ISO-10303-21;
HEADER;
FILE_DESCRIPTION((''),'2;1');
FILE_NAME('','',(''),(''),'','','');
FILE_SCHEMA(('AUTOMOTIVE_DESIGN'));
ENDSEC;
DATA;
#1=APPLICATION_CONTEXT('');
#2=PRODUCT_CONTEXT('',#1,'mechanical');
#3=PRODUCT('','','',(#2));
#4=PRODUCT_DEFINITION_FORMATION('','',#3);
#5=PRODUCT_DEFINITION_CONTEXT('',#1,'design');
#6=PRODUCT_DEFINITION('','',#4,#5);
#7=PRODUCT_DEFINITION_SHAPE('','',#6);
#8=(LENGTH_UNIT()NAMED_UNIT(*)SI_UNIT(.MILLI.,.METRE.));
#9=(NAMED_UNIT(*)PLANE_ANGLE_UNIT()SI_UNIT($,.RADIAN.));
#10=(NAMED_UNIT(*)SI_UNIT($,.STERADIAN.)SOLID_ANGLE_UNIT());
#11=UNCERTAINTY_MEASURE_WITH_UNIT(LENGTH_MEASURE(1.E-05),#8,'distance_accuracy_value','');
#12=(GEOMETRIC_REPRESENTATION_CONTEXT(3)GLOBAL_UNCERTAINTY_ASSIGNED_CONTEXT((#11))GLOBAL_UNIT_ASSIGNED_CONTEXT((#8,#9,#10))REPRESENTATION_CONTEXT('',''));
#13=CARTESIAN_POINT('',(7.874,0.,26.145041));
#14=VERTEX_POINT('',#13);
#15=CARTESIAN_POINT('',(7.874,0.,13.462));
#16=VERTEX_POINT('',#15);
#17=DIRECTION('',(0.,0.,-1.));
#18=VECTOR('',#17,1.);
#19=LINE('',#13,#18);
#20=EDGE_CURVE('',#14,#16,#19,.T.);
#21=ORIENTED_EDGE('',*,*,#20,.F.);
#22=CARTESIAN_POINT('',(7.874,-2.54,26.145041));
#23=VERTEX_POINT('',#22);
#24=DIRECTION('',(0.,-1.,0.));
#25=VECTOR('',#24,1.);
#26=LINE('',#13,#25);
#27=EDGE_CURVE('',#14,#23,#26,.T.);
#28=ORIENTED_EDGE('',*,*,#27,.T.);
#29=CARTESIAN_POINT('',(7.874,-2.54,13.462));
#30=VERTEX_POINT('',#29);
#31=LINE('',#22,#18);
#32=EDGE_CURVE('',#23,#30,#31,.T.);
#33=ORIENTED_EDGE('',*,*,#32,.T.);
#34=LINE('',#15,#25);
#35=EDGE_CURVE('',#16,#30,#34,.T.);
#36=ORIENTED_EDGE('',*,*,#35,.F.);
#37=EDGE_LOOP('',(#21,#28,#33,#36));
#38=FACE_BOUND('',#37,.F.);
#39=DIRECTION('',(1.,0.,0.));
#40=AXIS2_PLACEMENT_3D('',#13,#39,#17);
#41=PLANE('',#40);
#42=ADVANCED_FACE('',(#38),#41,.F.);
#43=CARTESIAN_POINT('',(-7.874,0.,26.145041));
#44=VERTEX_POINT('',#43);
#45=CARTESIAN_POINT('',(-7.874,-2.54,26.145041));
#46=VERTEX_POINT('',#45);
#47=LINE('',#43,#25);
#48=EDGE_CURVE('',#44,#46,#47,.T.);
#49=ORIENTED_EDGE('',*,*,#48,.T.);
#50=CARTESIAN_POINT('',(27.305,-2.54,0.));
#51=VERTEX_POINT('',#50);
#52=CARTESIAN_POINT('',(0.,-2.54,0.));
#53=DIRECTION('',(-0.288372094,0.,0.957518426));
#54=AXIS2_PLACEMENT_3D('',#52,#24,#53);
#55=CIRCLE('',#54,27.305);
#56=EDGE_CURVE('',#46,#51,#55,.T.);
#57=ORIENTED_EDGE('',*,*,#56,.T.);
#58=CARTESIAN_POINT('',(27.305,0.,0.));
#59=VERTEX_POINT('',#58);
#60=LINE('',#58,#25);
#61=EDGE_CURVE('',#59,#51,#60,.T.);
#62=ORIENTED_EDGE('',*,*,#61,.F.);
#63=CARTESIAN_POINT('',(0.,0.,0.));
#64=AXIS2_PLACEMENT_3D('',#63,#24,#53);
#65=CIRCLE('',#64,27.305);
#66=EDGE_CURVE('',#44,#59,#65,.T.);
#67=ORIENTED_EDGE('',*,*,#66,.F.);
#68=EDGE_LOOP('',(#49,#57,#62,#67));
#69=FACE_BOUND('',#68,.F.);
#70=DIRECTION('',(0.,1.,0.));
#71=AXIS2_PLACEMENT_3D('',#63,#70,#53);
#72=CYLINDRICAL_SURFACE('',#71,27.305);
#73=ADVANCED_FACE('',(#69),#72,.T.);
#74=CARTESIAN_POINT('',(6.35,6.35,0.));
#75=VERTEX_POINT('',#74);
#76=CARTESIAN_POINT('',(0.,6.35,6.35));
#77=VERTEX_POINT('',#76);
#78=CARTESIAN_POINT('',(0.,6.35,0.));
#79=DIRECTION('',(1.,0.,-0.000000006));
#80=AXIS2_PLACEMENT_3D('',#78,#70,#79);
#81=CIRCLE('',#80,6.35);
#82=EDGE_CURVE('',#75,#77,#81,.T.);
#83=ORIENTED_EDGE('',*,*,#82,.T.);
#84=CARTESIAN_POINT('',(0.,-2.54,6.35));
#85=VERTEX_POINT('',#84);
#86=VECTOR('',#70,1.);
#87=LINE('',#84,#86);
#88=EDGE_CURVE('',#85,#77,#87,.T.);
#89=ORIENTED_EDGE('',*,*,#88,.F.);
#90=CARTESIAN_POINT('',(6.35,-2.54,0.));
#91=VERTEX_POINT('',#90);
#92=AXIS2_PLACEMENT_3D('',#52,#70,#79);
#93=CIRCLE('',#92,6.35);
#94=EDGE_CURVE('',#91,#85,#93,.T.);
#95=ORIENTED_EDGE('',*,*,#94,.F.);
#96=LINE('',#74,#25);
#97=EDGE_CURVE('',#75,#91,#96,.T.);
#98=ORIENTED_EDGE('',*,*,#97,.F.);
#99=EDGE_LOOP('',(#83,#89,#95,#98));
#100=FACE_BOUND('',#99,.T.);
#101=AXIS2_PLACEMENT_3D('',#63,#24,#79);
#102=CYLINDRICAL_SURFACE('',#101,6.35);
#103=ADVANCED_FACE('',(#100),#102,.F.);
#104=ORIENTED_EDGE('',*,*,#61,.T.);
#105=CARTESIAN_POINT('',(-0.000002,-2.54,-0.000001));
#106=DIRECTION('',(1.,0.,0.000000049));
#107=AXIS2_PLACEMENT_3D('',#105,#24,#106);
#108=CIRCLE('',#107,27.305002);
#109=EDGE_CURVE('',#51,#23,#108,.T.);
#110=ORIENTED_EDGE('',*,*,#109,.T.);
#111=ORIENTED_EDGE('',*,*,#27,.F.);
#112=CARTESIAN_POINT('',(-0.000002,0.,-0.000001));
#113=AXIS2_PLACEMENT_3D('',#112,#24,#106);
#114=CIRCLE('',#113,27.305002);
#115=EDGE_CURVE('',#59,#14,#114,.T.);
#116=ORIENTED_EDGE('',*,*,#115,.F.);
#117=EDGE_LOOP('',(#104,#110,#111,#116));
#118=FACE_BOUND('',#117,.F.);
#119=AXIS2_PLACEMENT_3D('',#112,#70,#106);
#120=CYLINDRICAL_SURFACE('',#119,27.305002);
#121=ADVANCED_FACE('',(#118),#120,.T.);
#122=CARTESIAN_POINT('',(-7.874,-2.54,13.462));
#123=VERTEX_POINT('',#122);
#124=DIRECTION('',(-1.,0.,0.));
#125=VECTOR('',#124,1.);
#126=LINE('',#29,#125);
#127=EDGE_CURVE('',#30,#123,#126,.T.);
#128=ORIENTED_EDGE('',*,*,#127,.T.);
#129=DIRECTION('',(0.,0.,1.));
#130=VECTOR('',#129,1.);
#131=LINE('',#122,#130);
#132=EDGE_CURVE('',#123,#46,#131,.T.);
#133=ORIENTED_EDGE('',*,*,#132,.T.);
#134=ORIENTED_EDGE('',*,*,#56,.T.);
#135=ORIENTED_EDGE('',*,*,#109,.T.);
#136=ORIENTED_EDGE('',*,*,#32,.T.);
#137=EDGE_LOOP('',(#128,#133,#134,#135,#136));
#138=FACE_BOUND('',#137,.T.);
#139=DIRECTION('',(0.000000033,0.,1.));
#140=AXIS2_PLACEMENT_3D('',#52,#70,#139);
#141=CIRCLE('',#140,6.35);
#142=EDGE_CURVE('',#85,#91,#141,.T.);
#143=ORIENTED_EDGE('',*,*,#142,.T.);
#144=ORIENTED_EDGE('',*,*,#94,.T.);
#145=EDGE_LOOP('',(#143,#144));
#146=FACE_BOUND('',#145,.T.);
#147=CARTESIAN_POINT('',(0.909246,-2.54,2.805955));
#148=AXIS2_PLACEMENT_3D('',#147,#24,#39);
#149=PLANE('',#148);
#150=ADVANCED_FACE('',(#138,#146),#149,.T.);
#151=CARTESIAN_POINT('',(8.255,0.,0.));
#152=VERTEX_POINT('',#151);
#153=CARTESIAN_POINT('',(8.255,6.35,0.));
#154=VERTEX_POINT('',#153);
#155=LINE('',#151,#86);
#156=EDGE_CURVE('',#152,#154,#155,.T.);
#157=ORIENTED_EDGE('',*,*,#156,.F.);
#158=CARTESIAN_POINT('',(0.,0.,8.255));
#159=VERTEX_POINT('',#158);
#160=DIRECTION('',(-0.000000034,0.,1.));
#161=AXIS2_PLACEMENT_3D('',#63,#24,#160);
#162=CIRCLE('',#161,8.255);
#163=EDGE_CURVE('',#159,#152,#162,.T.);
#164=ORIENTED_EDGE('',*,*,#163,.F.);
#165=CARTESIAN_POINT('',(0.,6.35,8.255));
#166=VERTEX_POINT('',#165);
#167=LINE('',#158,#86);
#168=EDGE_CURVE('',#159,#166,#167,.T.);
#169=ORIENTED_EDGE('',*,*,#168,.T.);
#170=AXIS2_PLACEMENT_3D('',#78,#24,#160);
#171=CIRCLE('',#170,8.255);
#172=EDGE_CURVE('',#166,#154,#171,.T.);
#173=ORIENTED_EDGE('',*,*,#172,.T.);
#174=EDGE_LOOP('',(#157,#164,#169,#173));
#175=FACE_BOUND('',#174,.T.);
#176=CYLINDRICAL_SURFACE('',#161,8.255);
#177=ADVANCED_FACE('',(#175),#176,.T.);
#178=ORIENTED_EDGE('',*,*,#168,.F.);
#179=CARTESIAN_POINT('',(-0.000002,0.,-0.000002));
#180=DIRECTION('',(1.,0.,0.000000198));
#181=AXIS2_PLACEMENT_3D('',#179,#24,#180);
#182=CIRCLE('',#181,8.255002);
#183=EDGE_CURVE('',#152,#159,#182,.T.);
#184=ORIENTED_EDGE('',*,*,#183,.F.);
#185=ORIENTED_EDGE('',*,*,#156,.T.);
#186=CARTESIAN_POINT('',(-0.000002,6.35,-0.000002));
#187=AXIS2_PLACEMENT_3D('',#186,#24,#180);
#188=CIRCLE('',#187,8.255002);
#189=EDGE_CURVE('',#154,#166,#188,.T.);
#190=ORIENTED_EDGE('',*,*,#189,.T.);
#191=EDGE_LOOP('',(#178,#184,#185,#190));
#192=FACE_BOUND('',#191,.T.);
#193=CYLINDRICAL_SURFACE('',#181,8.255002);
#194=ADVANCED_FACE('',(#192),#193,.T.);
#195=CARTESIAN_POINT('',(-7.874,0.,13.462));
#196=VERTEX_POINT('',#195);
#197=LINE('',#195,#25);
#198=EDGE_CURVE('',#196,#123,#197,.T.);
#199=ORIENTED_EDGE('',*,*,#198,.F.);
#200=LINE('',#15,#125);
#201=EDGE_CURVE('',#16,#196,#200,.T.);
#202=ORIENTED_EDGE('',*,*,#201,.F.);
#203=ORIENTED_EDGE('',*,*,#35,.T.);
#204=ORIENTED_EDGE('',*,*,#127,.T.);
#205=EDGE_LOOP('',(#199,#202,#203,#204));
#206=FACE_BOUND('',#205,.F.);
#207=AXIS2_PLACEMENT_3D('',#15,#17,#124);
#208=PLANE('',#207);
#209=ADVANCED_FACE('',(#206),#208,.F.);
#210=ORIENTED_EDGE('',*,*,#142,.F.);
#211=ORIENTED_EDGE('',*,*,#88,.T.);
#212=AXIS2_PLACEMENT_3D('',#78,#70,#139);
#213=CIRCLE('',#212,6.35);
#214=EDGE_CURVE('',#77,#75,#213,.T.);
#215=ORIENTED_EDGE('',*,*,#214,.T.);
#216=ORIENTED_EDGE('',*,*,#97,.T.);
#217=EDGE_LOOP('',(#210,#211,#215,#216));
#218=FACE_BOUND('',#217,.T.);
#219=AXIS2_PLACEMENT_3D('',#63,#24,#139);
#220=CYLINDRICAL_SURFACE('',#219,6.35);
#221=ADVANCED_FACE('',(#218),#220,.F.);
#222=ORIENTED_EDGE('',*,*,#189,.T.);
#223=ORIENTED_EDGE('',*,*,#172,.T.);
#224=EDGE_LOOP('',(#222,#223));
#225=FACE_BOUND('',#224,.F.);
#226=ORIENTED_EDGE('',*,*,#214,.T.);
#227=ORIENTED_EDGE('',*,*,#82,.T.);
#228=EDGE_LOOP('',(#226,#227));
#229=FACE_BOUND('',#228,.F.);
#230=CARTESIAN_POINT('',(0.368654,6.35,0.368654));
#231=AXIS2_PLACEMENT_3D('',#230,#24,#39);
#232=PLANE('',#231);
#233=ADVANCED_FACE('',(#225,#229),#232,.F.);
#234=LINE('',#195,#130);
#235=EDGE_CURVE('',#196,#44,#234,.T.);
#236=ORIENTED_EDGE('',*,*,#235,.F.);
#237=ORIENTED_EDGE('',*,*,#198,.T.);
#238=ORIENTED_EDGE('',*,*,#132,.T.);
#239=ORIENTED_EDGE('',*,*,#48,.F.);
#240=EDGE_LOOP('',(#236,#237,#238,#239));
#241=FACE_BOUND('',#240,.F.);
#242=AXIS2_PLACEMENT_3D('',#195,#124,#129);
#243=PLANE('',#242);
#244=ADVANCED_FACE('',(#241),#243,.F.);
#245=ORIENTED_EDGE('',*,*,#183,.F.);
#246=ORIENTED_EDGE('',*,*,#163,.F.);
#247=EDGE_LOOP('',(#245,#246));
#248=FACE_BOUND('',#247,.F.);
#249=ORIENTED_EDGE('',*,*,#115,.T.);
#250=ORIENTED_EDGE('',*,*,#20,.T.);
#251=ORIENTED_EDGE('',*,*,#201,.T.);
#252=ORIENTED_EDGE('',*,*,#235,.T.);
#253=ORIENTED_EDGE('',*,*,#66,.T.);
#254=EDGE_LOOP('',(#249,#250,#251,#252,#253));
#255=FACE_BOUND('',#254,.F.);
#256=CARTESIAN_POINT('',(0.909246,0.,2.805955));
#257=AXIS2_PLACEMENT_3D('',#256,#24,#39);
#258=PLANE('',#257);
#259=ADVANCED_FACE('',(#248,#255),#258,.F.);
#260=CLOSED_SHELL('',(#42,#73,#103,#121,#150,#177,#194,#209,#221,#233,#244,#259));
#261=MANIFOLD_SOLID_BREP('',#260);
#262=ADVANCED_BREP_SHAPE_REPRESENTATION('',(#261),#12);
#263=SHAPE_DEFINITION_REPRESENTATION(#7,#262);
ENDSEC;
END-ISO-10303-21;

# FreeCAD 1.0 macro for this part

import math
import FreeCAD as App
import Part
import Sketcher
from FreeCAD import Vector
Q = App.Units.Quantity

doc = App.newDocument("Part")
body = doc.addObject("PartDesign::Body", "Body")

# Sketch on XZ plane
sketch1 = body.newObject("Sketcher::SketchObject", "Sketch")
sketch1.AttachmentSupport = (doc.getObject("XZ_Plane"), [""])
sketch1.MapMode = "FlatFace"
sketch1.addGeometry(Part.ArcOfCircle(Part.Circle(Vector(0, 0, 0), Vector(0, 0, 1), 27), math.radians(107), math.radians(360)), False)
sketch1.addGeometry(Part.ArcOfCircle(Part.Circle(Vector(0, 0, 0), Vector(0, 0, 1), 27), math.radians(0), math.radians(73)), False)
sketch1.addGeometry(Part.LineSegment(Vector(8, 26, 0), Vector(8, 13, 0)), False)
sketch1.addGeometry(Part.LineSegment(Vector(8, 13, 0), Vector(-8, 13, 0)), False)
sketch1.addGeometry(Part.LineSegment(Vector(-8, 13, 0), Vector(-8, 26, 0)), False)
sketch1.addGeometry(Part.ArcOfCircle(Part.Circle(Vector(0, 0, 0), Vector(0, 0, 1), 6), math.radians(0), math.radians(90)), False)
sketch1.addGeometry(Part.ArcOfCircle(Part.Circle(Vector(0, 0, 0), Vector(0, 0, 1), 6), math.radians(90), math.radians(360)), False)
sketch1.addConstraint(Sketcher.Constraint("Tangent", 0, 2, 1, 1))
sketch1.addConstraint(Sketcher.Constraint("Coincident", 1, 2, 2, 1))
sketch1.addConstraint(Sketcher.Constraint("Coincident", 2, 2, 3, 1))
sketch1.addConstraint(Sketcher.Constraint("Coincident", 3, 2, 4, 1))
sketch1.addConstraint(Sketcher.Constraint("Coincident", 4, 2, 0, 1))
sketch1.addConstraint(Sketcher.Constraint("Tangent", 5, 1, 6, 2))
sketch1.addConstraint(Sketcher.Constraint("Coincident", 6, 1, 5, 2))
sketch1.addConstraint(Sketcher.Constraint("Vertical", 2))
sketch1.addConstraint(Sketcher.Constraint("Horizontal", 3))
sketch1.addConstraint(Sketcher.Constraint("Vertical", 4))
sketch1.addConstraint(Sketcher.Constraint("Coincident", 0, 3, -1, 1))
sketch1.addConstraint(Sketcher.Constraint("Coincident", 5, 3, -1, 1))
sketch1.addConstraint(Sketcher.Constraint("Symmetric", 1, 2, 4, 2, -2))
sketch1.addConstraint(Sketcher.Constraint("PointOnObject", 0, 2, -1))
sketch1.addConstraint(Sketcher.Constraint("PointOnObject", 5, 1, -1))
sketch1.addConstraint(Sketcher.Constraint("PointOnObject", 6, 1, -2))
sketch1.addConstraint(Sketcher.Constraint("Radius", 5, Q("0.25 in")))
sketch1.addConstraint(Sketcher.Constraint("Radius", 0, Q("1.075 in")))
sketch1.addConstraint(Sketcher.Constraint("DistanceX", 3, 2, 3, 1, Q("0.62 in")))
sketch1.addConstraint(Sketcher.Constraint("DistanceY", -1, 1, 2, 2, Q("0.53 in")))
pad1 = body.newObject("PartDesign::Pad", "Pad")
pad1.Profile = sketch1
pad1.Length = Q("0.1 in")

# Sketch on XZ plane
sketch2 = body.newObject("Sketcher::SketchObject", "Sketch001")
sketch2.AttachmentSupport = (doc.getObject("XZ_Plane"), [""])
sketch2.MapMode = "FlatFace"
sketch2.addGeometry(Part.ArcOfCircle(Part.Circle(Vector(0, 0, 0), Vector(0, 0, 1), 8), math.radians(0), math.radians(90)), False)
sketch2.addGeometry(Part.ArcOfCircle(Part.Circle(Vector(0, 0, 0), Vector(0, 0, 1), 8), math.radians(90), math.radians(360)), False)
sketch2.addGeometry(Part.ArcOfCircle(Part.Circle(Vector(0, 0, 0), Vector(0, 0, 1), 6), math.radians(0), math.radians(90)), False)
sketch2.addGeometry(Part.ArcOfCircle(Part.Circle(Vector(0, 0, 0), Vector(0, 0, 1), 6), math.radians(90), math.radians(360)), False)
sketch2.addConstraint(Sketcher.Constraint("Tangent", 0, 1, 1, 2))
sketch2.addConstraint(Sketcher.Constraint("Coincident", 1, 1, 0, 2))
sketch2.addConstraint(Sketcher.Constraint("Tangent", 2, 1, 3, 2))
sketch2.addConstraint(Sketcher.Constraint("Coincident", 3, 1, 2, 2))
sketch2.addConstraint(Sketcher.Constraint("Coincident", 0, 3, -1, 1))
sketch2.addConstraint(Sketcher.Constraint("Coincident", 2, 3, -1, 1))
sketch2.addConstraint(Sketcher.Constraint("PointOnObject", 0, 1, -1))
sketch2.addConstraint(Sketcher.Constraint("PointOnObject", 1, 1, -2))
sketch2.addConstraint(Sketcher.Constraint("PointOnObject", 2, 1, -1))
sketch2.addConstraint(Sketcher.Constraint("PointOnObject", 3, 1, -2))
sketch2.addConstraint(Sketcher.Constraint("Radius", 2, Q("0.25 in")))
sketch2.addConstraint(Sketcher.Constraint("Radius", 0, Q("0.3250001 in")))
pad2 = body.newObject("PartDesign::Pad", "Pad001")
pad2.Profile = sketch2
pad2.Length = Q("0.25 in")
pad2.Reversed = True

doc.recompute()
